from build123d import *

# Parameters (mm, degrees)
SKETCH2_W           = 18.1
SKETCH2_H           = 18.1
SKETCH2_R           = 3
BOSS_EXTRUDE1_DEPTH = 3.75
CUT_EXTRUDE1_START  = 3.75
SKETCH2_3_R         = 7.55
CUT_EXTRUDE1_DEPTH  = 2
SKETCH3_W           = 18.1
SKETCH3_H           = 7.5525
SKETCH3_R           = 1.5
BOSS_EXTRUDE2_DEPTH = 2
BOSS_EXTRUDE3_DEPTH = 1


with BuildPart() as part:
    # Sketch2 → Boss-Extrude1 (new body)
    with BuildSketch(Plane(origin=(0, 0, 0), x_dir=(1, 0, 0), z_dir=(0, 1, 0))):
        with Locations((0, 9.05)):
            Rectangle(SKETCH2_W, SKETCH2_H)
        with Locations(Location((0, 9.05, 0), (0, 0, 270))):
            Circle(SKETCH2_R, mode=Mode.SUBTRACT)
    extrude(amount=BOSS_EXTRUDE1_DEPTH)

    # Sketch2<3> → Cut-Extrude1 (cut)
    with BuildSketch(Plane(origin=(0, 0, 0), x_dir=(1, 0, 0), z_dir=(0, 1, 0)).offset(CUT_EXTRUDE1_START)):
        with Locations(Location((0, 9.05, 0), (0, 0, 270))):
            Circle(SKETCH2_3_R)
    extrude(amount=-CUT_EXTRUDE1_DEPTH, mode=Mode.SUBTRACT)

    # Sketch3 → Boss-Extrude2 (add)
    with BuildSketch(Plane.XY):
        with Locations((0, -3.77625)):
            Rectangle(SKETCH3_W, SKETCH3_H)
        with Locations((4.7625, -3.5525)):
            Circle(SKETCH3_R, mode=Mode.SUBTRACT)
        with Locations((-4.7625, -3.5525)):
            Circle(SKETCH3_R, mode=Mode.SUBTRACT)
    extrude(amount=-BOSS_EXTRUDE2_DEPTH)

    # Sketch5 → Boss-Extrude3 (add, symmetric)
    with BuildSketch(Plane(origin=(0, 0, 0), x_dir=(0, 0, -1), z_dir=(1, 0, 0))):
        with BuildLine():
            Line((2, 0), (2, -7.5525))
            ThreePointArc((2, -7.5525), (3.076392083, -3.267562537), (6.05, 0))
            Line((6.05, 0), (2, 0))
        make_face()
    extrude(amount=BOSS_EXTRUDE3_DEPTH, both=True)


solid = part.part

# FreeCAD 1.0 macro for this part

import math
import FreeCAD as App
import Part
import Sketcher
from FreeCAD import Vector

doc = App.newDocument("Part")
body = doc.addObject("PartDesign::Body", "Body")

# Sketch on XZ plane
sketch1 = body.newObject("Sketcher::SketchObject", "Sketch")
sketch1.AttachmentSupport = (doc.getObject("XZ_Plane"), [""])
sketch1.MapMode = "FlatFace"
sketch1.addGeometry([
    Part.LineSegment(Vector(-9.05, -18.1, 0), Vector(-9.05, 0, 0)),  # 0
    Part.LineSegment(Vector(-9.05, 0, 0), Vector(9.05, 0, 0)),  # 1
    Part.LineSegment(Vector(9.05, 0, 0), Vector(9.05, -18.1, 0)),  # 2
    Part.LineSegment(Vector(9.05, -18.1, 0), Vector(-9.05, -18.1, 0)),  # 3
    Part.Circle(Vector(0, -9.05, 0), Vector(0, 0, 1), 3),  # 4
], False)
sketch1.addConstraint([
    Sketcher.Constraint("Coincident", 0, 2, 1, 1),
    Sketcher.Constraint("Coincident", 1, 2, 2, 1),
    Sketcher.Constraint("Coincident", 2, 2, 3, 1),
    Sketcher.Constraint("Coincident", 3, 2, 0, 1),
    Sketcher.Constraint("Vertical", 0),
    Sketcher.Constraint("Horizontal", 1),
    Sketcher.Constraint("Vertical", 2),
    Sketcher.Constraint("Horizontal", 3),
    Sketcher.Constraint("Symmetric", 0, 2, 1, 2, -1, 1),
    Sketcher.Constraint("PointOnObject", 4, 3, -2),
    Sketcher.Constraint("Equal", 3, 0),
    Sketcher.Constraint("Diameter", 4, 6.0),
    Sketcher.Constraint("DistanceX", 1, 1, 1, 2, 18.1),
    Sketcher.Constraint("DistanceY", 4, 3, -1, 1, 9.05),
])
pad1 = body.newObject("PartDesign::Pad", "Pad")
pad1.Profile = sketch1
pad1.Length = 3.75
pad1.Reversed = True

# Sketch on XZ plane
sketch2 = body.newObject("Sketcher::SketchObject", "Sketch001")
sketch2.AttachmentSupport = (doc.getObject("XZ_Plane"), [""])
sketch2.MapMode = "FlatFace"
sketch2.AttachmentOffset = App.Placement(Vector(0, 0, -3.75), App.Rotation())
sketch2.addGeometry(Part.Circle(Vector(0, -9.05, 0), Vector(0, 0, 1), 7.55), False)
sketch2.addConstraint([
    Sketcher.Constraint("PointOnObject", 0, 3, -2),
    Sketcher.Constraint("Diameter", 0, 15.1),
    Sketcher.Constraint("DistanceY", 0, 3, -1, 1, 9.05),
])
pocket1 = body.newObject("PartDesign::Pocket", "Pocket")
pocket1.Profile = sketch2
pocket1.Length = 2
pocket1.Reversed = True

# Sketch on XY plane
sketch3 = body.newObject("Sketcher::SketchObject", "Sketch002")
sketch3.AttachmentSupport = (doc.getObject("XY_Plane"), [""])
sketch3.MapMode = "FlatFace"
sketch3.addGeometry([
    Part.LineSegment(Vector(-9.05, 0, 0), Vector(-9.05, -7.5525, 0)),  # 0
    Part.LineSegment(Vector(-9.05, -7.5525, 0), Vector(9.05, -7.5525, 0)),  # 1
    Part.LineSegment(Vector(9.05, -7.5525, 0), Vector(9.05, 0, 0)),  # 2
    Part.LineSegment(Vector(9.05, 0, 0), Vector(-9.05, 0, 0)),  # 3
    Part.Circle(Vector(-4.7625, -3.5525, 0), Vector(0, 0, 1), 1.5),  # 4
    Part.Circle(Vector(4.7625, -3.5525, 0), Vector(0, 0, 1), 1.5),  # 5
], False)
sketch3.addConstraint([
    Sketcher.Constraint("Coincident", 0, 2, 1, 1),
    Sketcher.Constraint("Coincident", 1, 2, 2, 1),
    Sketcher.Constraint("Coincident", 2, 2, 3, 1),
    Sketcher.Constraint("Coincident", 3, 2, 0, 1),
    Sketcher.Constraint("Vertical", 0),
    Sketcher.Constraint("Horizontal", 1),
    Sketcher.Constraint("Vertical", 2),
    Sketcher.Constraint("Horizontal", 3),
    Sketcher.Constraint("Equal", 4, 5),
    Sketcher.Constraint("Symmetric", 2, 2, 3, 2, -1, 1),
    Sketcher.Constraint("Symmetric", 4, 3, 5, 3, -2),
    Sketcher.Constraint("Diameter", 4, 3.0),
    Sketcher.Constraint("DistanceX", 1, 1, 1, 2, 18.1),
    Sketcher.Constraint("DistanceY", 0, 2, 4, 3, 4.0),
    Sketcher.Constraint("DistanceY", 0, 2, 0, 1, 7.5525),
    Sketcher.Constraint("DistanceX", 4, 3, 5, 3, 9.525),
])
pad2 = body.newObject("PartDesign::Pad", "Pad001")
pad2.Profile = sketch3
pad2.Length = 2
pad2.Reversed = True

# Sketch on YZ plane
sketch4 = body.newObject("Sketcher::SketchObject", "Sketch003")
sketch4.AttachmentSupport = (doc.getObject("YZ_Plane"), [""])
sketch4.MapMode = "FlatFace"
sketch4.addGeometry([
    Part.LineSegment(Vector(0, -2, 0), Vector(-7.5525, -2, 0)),
    Part.ArcOfCircle(Part.Circle(Vector(-7.5525, -11.067007, 0), Vector(0, 0, 1), 9.067007), math.radians(33.595463), math.radians(90)),
    Part.LineSegment(Vector(0, -6.05, 0), Vector(0, -2, 0)),
], False)
sketch4.addConstraint([
    Sketcher.Constraint("Tangent", 0, 2, 1, 2),
    Sketcher.Constraint("Coincident", 1, 1, 2, 1),
    Sketcher.Constraint("Coincident", 2, 2, 0, 1),
    Sketcher.Constraint("Horizontal", 0),
    Sketcher.Constraint("Vertical", 2),
    Sketcher.Constraint("PointOnObject", 1, 1, -2),
    Sketcher.Constraint("DistanceY", 0, 2, -1, 1, 2.0),
    Sketcher.Constraint("DistanceY", 2, 1, 2, 2, 4.05),
    Sketcher.Constraint("DistanceX", 0, 2, 0, 1, 7.5525),
])
pad3 = body.newObject("PartDesign::Pad", "Pad002")
pad3.Profile = sketch4
pad3.Length = 2
pad3.Midplane = True

doc.recompute()
